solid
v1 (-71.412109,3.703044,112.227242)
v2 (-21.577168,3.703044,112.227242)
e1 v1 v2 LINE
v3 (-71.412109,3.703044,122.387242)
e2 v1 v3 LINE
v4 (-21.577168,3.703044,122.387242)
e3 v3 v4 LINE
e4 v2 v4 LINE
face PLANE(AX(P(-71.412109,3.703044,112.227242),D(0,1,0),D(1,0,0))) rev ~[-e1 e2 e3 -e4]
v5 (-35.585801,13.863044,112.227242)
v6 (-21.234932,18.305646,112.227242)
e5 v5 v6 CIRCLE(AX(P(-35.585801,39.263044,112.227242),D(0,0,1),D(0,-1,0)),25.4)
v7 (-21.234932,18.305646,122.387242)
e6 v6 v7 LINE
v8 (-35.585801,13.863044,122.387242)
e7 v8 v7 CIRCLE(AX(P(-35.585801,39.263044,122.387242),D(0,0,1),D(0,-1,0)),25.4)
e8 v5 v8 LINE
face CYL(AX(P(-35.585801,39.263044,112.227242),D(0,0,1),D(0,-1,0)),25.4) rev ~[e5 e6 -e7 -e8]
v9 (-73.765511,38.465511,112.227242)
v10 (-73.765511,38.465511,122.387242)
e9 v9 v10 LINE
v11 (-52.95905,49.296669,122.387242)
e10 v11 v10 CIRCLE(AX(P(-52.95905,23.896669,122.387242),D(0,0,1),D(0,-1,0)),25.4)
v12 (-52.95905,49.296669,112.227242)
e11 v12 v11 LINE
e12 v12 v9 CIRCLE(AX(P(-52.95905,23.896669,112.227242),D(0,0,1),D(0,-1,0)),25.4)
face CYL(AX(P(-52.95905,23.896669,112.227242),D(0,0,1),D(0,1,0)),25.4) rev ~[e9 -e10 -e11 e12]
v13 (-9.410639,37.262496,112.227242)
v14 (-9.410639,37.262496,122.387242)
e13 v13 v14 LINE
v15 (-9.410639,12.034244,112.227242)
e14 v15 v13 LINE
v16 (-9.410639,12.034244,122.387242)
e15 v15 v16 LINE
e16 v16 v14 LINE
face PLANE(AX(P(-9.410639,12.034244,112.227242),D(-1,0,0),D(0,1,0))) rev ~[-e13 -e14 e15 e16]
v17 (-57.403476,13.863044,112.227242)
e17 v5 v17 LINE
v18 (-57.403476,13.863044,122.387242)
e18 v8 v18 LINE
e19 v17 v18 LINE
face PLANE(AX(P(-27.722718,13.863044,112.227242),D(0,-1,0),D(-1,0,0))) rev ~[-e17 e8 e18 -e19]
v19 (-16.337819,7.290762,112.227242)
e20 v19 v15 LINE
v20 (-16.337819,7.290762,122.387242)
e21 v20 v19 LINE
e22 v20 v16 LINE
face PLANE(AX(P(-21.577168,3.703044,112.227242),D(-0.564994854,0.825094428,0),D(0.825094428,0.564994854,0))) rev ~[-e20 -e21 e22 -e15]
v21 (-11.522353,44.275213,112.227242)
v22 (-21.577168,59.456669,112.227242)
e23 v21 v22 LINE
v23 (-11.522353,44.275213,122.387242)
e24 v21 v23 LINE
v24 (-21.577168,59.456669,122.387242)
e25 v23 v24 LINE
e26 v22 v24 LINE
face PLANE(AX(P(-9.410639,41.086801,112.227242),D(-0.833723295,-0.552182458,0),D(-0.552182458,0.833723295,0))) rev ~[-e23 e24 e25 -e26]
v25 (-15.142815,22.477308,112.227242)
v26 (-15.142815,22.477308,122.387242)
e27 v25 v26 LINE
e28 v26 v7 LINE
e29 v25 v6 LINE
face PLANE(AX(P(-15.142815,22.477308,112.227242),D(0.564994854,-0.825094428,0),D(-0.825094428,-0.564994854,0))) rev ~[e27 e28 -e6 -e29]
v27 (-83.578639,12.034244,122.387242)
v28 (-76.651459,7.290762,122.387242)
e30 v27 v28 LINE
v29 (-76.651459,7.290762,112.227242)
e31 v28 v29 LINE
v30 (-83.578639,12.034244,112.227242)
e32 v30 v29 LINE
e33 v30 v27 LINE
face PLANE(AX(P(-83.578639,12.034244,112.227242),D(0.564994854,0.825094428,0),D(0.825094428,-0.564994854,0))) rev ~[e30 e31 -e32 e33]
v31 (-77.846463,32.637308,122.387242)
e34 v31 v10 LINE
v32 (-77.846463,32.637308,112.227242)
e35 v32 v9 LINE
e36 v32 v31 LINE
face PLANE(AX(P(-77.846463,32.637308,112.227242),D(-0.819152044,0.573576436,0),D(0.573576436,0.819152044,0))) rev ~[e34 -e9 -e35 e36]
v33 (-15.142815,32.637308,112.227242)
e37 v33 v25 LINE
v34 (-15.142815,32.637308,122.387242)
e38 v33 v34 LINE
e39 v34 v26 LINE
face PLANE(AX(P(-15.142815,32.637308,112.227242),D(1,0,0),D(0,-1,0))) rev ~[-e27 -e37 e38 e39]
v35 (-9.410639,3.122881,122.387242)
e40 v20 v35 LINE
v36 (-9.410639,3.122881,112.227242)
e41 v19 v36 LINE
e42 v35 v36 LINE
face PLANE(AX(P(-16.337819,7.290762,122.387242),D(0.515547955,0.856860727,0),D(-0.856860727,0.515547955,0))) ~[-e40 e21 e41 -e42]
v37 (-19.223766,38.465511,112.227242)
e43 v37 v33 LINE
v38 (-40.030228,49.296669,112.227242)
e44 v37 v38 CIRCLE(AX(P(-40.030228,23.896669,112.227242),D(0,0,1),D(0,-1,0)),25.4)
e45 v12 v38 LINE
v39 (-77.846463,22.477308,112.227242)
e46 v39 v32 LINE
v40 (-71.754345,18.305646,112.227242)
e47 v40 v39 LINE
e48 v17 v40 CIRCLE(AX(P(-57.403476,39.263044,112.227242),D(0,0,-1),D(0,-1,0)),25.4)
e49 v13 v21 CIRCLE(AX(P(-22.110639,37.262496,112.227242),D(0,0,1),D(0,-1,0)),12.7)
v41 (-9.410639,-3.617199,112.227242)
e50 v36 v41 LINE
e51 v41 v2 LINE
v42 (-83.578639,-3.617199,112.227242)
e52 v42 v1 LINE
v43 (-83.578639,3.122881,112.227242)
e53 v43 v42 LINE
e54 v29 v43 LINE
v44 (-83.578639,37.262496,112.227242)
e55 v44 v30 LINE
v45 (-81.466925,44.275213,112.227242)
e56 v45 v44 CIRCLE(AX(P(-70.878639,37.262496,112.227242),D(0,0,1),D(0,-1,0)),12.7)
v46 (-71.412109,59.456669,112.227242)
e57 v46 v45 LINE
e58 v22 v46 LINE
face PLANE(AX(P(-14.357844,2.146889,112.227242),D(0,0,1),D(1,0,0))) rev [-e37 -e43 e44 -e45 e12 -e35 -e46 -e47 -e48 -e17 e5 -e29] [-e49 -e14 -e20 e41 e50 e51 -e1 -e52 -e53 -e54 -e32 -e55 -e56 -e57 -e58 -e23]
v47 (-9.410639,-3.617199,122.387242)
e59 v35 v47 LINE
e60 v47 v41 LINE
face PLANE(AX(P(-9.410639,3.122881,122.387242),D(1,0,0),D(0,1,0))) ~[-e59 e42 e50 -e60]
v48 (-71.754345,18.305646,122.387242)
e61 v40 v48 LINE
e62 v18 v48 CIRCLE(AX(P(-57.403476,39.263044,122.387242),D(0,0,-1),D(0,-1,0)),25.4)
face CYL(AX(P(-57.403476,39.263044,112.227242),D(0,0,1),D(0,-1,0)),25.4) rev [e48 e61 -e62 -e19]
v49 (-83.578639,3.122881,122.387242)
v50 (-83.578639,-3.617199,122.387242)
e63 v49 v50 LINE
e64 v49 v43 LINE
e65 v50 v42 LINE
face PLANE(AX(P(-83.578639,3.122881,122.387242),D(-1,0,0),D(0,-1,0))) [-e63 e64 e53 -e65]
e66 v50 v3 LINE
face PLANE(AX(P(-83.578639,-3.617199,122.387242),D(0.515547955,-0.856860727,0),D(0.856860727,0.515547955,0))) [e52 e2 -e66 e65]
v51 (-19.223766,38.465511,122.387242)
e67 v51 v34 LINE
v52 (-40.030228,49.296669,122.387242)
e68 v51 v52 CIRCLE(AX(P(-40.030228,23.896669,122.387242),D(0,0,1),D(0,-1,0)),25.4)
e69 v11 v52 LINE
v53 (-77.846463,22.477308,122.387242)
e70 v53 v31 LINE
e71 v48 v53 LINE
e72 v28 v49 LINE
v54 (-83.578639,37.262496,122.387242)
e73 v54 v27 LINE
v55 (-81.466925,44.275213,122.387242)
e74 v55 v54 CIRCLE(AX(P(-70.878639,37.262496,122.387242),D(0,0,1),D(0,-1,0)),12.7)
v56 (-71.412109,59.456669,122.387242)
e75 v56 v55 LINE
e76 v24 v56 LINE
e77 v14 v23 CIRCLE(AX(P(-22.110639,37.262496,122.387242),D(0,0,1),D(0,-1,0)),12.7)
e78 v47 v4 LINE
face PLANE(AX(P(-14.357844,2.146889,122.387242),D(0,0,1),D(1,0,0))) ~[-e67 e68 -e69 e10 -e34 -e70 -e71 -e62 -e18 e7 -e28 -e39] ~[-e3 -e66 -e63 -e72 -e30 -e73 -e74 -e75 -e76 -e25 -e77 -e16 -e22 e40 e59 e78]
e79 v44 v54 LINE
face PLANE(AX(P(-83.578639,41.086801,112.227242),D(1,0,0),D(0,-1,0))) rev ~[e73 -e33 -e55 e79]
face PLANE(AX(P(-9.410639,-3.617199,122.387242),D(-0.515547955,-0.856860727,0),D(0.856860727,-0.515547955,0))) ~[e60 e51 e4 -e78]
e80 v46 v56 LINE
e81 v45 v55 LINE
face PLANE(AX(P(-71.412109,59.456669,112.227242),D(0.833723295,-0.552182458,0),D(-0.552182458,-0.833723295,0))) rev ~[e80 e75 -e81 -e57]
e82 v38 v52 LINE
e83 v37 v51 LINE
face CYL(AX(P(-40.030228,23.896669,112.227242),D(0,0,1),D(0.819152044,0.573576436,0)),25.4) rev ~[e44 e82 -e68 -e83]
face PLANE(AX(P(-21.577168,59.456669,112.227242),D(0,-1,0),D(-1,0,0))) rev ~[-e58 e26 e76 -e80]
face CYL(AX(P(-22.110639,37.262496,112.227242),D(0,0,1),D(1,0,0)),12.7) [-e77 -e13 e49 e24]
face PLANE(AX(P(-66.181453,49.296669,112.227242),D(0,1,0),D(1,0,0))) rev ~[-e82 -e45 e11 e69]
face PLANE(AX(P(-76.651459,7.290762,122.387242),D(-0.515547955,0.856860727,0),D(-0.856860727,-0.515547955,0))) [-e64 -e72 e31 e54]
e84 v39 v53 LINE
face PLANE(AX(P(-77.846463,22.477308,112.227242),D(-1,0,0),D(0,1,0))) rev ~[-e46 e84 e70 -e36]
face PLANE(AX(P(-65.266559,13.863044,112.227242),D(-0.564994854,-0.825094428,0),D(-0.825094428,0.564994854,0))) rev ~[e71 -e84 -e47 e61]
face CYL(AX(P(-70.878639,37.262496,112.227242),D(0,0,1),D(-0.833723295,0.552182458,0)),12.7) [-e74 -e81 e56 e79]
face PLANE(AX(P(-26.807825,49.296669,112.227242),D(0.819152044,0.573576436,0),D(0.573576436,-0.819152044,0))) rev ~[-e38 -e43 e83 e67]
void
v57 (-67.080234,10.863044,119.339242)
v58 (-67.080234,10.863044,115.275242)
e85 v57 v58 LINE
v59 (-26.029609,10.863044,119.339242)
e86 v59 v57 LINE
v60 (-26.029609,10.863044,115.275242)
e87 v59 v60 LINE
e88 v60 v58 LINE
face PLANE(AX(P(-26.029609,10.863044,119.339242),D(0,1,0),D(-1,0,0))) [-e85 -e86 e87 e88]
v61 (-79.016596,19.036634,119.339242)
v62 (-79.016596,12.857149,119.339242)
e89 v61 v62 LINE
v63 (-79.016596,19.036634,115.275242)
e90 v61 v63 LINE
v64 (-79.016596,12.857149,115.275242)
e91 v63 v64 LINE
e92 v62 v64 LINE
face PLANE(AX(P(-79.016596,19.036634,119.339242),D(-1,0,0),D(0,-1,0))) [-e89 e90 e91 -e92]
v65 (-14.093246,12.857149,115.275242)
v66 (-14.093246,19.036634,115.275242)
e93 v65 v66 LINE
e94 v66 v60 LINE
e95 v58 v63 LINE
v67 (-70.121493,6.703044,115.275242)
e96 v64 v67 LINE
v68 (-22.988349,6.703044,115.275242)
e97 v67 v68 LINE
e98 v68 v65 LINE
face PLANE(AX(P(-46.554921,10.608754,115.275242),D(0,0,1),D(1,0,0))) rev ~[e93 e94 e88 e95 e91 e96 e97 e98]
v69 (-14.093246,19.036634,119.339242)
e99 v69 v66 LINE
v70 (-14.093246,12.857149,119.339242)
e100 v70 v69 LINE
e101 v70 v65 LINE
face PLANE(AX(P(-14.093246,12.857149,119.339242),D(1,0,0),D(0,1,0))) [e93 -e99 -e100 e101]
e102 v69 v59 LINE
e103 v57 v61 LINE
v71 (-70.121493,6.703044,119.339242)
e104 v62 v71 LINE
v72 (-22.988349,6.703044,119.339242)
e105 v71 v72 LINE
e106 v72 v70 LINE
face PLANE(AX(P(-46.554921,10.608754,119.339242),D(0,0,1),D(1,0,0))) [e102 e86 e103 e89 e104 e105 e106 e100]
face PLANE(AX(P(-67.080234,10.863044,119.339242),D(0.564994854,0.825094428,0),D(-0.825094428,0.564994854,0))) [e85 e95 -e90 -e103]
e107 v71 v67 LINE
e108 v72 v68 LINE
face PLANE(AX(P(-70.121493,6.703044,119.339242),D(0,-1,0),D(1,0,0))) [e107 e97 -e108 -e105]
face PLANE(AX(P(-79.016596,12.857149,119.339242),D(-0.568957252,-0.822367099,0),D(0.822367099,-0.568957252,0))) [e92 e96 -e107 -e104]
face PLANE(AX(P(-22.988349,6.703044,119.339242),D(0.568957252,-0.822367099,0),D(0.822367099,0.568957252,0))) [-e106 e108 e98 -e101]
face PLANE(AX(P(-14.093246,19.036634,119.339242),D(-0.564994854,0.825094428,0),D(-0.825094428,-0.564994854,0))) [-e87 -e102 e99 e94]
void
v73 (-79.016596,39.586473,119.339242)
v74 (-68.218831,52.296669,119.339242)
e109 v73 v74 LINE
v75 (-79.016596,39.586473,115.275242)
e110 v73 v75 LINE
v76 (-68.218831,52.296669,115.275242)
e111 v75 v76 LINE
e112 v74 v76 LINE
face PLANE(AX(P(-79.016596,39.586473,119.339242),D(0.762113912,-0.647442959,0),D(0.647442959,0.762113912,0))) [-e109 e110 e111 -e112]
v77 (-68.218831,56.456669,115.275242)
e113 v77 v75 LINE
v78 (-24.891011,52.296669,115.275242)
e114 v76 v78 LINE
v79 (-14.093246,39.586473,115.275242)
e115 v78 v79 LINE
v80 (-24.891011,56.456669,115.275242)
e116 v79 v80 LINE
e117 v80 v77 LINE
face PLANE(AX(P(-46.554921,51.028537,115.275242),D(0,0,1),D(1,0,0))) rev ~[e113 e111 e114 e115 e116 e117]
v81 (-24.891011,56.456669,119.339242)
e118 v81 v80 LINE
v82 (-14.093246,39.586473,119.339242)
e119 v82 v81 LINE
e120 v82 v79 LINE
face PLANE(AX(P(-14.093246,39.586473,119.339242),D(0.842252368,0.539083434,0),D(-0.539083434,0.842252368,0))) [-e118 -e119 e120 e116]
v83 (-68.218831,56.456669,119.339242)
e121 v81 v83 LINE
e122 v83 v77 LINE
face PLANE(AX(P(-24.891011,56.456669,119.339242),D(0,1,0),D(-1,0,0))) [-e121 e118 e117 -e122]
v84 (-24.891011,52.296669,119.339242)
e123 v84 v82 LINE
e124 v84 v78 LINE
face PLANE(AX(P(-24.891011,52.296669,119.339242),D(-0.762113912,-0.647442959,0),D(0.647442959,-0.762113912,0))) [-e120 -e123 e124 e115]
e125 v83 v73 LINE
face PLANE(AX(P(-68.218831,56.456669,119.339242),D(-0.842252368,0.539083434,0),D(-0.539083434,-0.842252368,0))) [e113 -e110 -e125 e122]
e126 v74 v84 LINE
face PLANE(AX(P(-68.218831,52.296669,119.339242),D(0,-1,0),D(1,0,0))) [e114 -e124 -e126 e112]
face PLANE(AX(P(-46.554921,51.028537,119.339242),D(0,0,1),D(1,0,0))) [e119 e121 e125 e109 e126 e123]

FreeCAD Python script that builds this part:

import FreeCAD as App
import Part
import Sketcher
Q = App.Units.Quantity


def edges_at(feature, points):
    """Names of the edges that pass closest to the given points."""
    edges = feature.Shape.Edges
    near = lambda p: min(range(len(edges)), key=lambda i: edges[i].distToShape(Part.Vertex(*p))[0])
    return sorted({f"Edge{near(p) + 1}" for p in points})

doc = App.newDocument("Part")
body = doc.addObject("PartDesign::Body", "Body")

sketch1 = body.newObject("Sketcher::SketchObject", "Sketch")
sketch1.AttachmentSupport = (doc.getObject("XY_Plane"), [""])
sketch1.MapMode = "FlatFace"
sketch1.AttachmentOffset = App.Placement(App.Vector(0, 0, 117.307242), App.Rotation())
sketch1.addGeometry([
    Part.LineSegment(App.Vector(-84, 12, 0), App.Vector(-71, 4, 0)),
    Part.LineSegment(App.Vector(-71, 4, 0), App.Vector(-22, 4, 0)),
    Part.LineSegment(App.Vector(-22, 4, 0), App.Vector(-9, 12, 0)),
    Part.LineSegment(App.Vector(-9, 12, 0), App.Vector(-9, 41, 0)),
    Part.LineSegment(App.Vector(-9, 41, 0), App.Vector(-22, 59, 0)),
    Part.LineSegment(App.Vector(-22, 59, 0), App.Vector(-71, 59, 0)),
    Part.LineSegment(App.Vector(-71, 59, 0), App.Vector(-84, 41, 0)),
    Part.LineSegment(App.Vector(-84, 41, 0), App.Vector(-84, 12, 0)),
    Part.LineSegment(App.Vector(-28, 14, 0), App.Vector(-65, 14, 0)),
    Part.LineSegment(App.Vector(-65, 14, 0), App.Vector(-78, 22, 0)),
    Part.LineSegment(App.Vector(-78, 22, 0), App.Vector(-78, 33, 0)),
    Part.LineSegment(App.Vector(-78, 33, 0), App.Vector(-66, 49, 0)),
    Part.LineSegment(App.Vector(-66, 49, 0), App.Vector(-27, 49, 0)),
    Part.LineSegment(App.Vector(-27, 49, 0), App.Vector(-15, 33, 0)),
    Part.LineSegment(App.Vector(-15, 33, 0), App.Vector(-15, 22, 0)),
    Part.LineSegment(App.Vector(-15, 22, 0), App.Vector(-28, 14, 0)),
], False)
sketch1.addConstraint([
    Sketcher.Constraint("Coincident", 0, 2, 1, 1),
    Sketcher.Constraint("Coincident", 1, 2, 2, 1),
    Sketcher.Constraint("Coincident", 2, 2, 3, 1),
    Sketcher.Constraint("Coincident", 3, 2, 4, 1),
    Sketcher.Constraint("Coincident", 4, 2, 5, 1),
    Sketcher.Constraint("Coincident", 5, 2, 6, 1),
    Sketcher.Constraint("Coincident", 6, 2, 7, 1),
    Sketcher.Constraint("Coincident", 7, 2, 0, 1),
    Sketcher.Constraint("Coincident", 8, 2, 9, 1),
    Sketcher.Constraint("Coincident", 9, 2, 10, 1),
    Sketcher.Constraint("Coincident", 10, 2, 11, 1),
    Sketcher.Constraint("Coincident", 11, 2, 12, 1),
    Sketcher.Constraint("Coincident", 12, 2, 13, 1),
    Sketcher.Constraint("Coincident", 13, 2, 14, 1),
    Sketcher.Constraint("Coincident", 14, 2, 15, 1),
    Sketcher.Constraint("Coincident", 15, 2, 8, 1),
    Sketcher.Constraint("Horizontal", 1),
    Sketcher.Constraint("Vertical", 3),
    Sketcher.Constraint("Horizontal", 5),
    Sketcher.Constraint("Vertical", 7),
    Sketcher.Constraint("Horizontal", 8),
    Sketcher.Constraint("Vertical", 10),
    Sketcher.Constraint("Horizontal", 12),
    Sketcher.Constraint("Vertical", 14),
    Sketcher.Constraint("Parallel", 0, 9),
    Sketcher.Constraint("Parallel", 2, 15),
    Sketcher.Constraint("Horizontal", 3, 2, 6, 2),
    Sketcher.Constraint("Horizontal", 2, 2, 7, 2),
    Sketcher.Constraint("Horizontal", 10, 2, 13, 2),
    Sketcher.Constraint("Horizontal", 9, 2, 14, 2),
    Sketcher.Constraint("Vertical", 1, 2, 4, 2),
    Sketcher.Constraint("Vertical", 0, 2, 5, 2),
    Sketcher.Constraint("Equal", 0, 2),
    Sketcher.Constraint("Equal", 11, 13),
    Sketcher.Constraint("DistanceY", 10, 1, 10, 2, Q("0.4 in")),
    Sketcher.Constraint("Angle", 11, Q("55 deg")),
    Sketcher.Constraint("DistanceY", 0, 2, 8, 2, Q("0.4 in")),
    Sketcher.Constraint("DistanceY", 11, 2, 5, 2, Q("0.4 in")),
    Sketcher.Constraint("DistanceX", 6, 2, 3, 2, Q("2.92 in")),
    Sketcher.Constraint("DistanceY", 1, 2, 2, 2, Q("0.328 in")),
    Sketcher.Constraint("DistanceX", 1, 1, 1, 2, Q("49.83494 mm")),
    Sketcher.Constraint("DistanceX", 8, 2, 8, 1, Q("37.543841 mm")),
    Sketcher.Constraint("DistanceY", -1, 1, 3, 2, Q("41.086801 mm")),
    Sketcher.Constraint("Distance", 4, Q("22.033532 mm")),
    Sketcher.Constraint("DistanceX", 12, 1, 12, 2, Q("39.373628 mm")),
    Sketcher.Constraint("DistanceY", 3, 1, 3, 2, Q("29.052556 mm")),
    Sketcher.Constraint("DistanceX", 0, 2, -1, 1, Q("71.412109 mm")),
    Sketcher.Constraint("DistanceX", 8, 2, -1, 1, Q("65.266559 mm")),
])
pad1 = body.newObject("PartDesign::Pad", "Pad")
pad1.Profile = sketch1
pad1.Type = "TwoLengths"
pad1.Length = Q("0.2 in")
pad1.Length2 = Q("0.2 in")
doc.recompute()

fillet = body.newObject("PartDesign::Fillet", "Fillet")
fillet.Base = (pad1, edges_at(pad1, [(-9.411, 41.087, 117.307)]))
fillet.Radius = Q("0.5 in")
doc.recompute()

fillet2 = body.newObject("PartDesign::Fillet", "Fillet001")
fillet2.Base = (fillet, edges_at(fillet, [(-83.579, 41.087, 117.307)]))
fillet2.Radius = Q("0.5 in")
doc.recompute()

fillet3 = body.newObject("PartDesign::Fillet", "Fillet002")
fillet3.Base = (fillet2, edges_at(fillet2, [
    (-65.267, 13.863, 117.307),
    (-27.723, 13.863, 117.307),
    (-26.808, 49.297, 117.307),
    (-66.181, 49.297, 117.307),
]))
fillet3.Radius = Q("1 in")

sketch2 = body.newObject("Sketcher::SketchObject", "Sketch001")
sketch2.AttachmentSupport = (doc.getObject("XY_Plane"), [""])
sketch2.MapMode = "FlatFace"
sketch2.AttachmentOffset = App.Placement(App.Vector(0, 0, 122.387242), App.Rotation())
sketch2.addGeometry([
    Part.LineSegment(App.Vector(-84, -4, 0), App.Vector(-71, 4, 0)),
    Part.LineSegment(App.Vector(-71, 4, 0), App.Vector(-77, 7, 0)),
    Part.LineSegment(App.Vector(-77, 7, 0), App.Vector(-84, 3, 0)),
    Part.LineSegment(App.Vector(-84, 3, 0), App.Vector(-84, -4, 0)),
], False)
sketch2.addConstraint([
    Sketcher.Constraint("Coincident", 0, 2, 1, 1),
    Sketcher.Constraint("Coincident", 1, 2, 2, 1),
    Sketcher.Constraint("Coincident", 2, 2, 3, 1),
    Sketcher.Constraint("Coincident", 3, 2, 0, 1),
    Sketcher.Constraint("Vertical", 3),
    Sketcher.Constraint("Parallel", 0, 2),
    Sketcher.Constraint("Distance", 1, Q("0.25 in")),
    Sketcher.Constraint("DistanceY", 3, 2, 3, 1, Q("6.74008 mm")),
    Sketcher.Constraint("DistanceY", 3, 2, -1, 1, Q("3.617199 mm")),
    Sketcher.Constraint("Distance", 0, Q("14.198958 mm")),
    Sketcher.Constraint("Distance", 2, Q("8.084371 mm")),
    Sketcher.Constraint("DistanceX", 0, 2, -1, 1, Q("71.412109 mm")),
])
pad2 = body.newObject("PartDesign::Pad", "Pad001")
pad2.Profile = sketch2
pad2.Length = Q("0.4 in")
pad2.Reversed = True
doc.recompute()

datumplane = body.newObject("PartDesign::Plane", "DatumPlane")
datumplane.AttachmentSupport = (doc.getObject("YZ_Plane"), [""])
datumplane.MapMode = "FlatFace"
datumplane.AttachmentOffset = App.Placement(App.Vector(0, 0, -46.494639), App.Rotation())
mirrored = body.newObject("PartDesign::Mirrored", "Mirrored")
mirrored.Originals = [pad2]
mirrored.MirrorPlane = (datumplane, [""])
body.Tip = mirrored

sketch3 = body.newObject("Sketcher::SketchObject", "Sketch002")
sketch3.AttachmentSupport = (doc.getObject("XY_Plane"), [""])
sketch3.MapMode = "FlatFace"
sketch3.AttachmentOffset = App.Placement(App.Vector(0, 0, 117.307242), App.Rotation())
sketch3.addGeometry([
    Part.LineSegment(App.Vector(-68, 56, 0), App.Vector(-25, 56, 0)),
    Part.LineSegment(App.Vector(-25, 56, 0), App.Vector(-14, 40, 0)),
    Part.LineSegment(App.Vector(-14, 40, 0), App.Vector(-25, 52, 0)),
    Part.LineSegment(App.Vector(-25, 52, 0), App.Vector(-68, 52, 0)),
    Part.LineSegment(App.Vector(-68, 52, 0), App.Vector(-79, 40, 0)),
    Part.LineSegment(App.Vector(-79, 40, 0), App.Vector(-68, 56, 0)),
    Part.LineSegment(App.Vector(-79, 13, 0), App.Vector(-79, 19, 0)),
    Part.LineSegment(App.Vector(-79, 19, 0), App.Vector(-67, 11, 0)),
    Part.LineSegment(App.Vector(-67, 11, 0), App.Vector(-26, 11, 0)),
    Part.LineSegment(App.Vector(-26, 11, 0), App.Vector(-14, 19, 0)),
    Part.LineSegment(App.Vector(-14, 19, 0), App.Vector(-14, 13, 0)),
    Part.LineSegment(App.Vector(-14, 13, 0), App.Vector(-23, 7, 0)),
    Part.LineSegment(App.Vector(-23, 7, 0), App.Vector(-70, 7, 0)),
    Part.LineSegment(App.Vector(-70, 7, 0), App.Vector(-79, 13, 0)),
], False)
sketch3.addConstraint([
    Sketcher.Constraint("Coincident", 0, 2, 1, 1),
    Sketcher.Constraint("Coincident", 1, 2, 2, 1),
    Sketcher.Constraint("Coincident", 2, 2, 3, 1),
    Sketcher.Constraint("Coincident", 3, 2, 4, 1),
    Sketcher.Constraint("Coincident", 4, 2, 5, 1),
    Sketcher.Constraint("Coincident", 5, 2, 0, 1),
    Sketcher.Constraint("Coincident", 6, 2, 7, 1),
    Sketcher.Constraint("Coincident", 7, 2, 8, 1),
    Sketcher.Constraint("Coincident", 8, 2, 9, 1),
    Sketcher.Constraint("Coincident", 9, 2, 10, 1),
    Sketcher.Constraint("Coincident", 10, 2, 11, 1),
    Sketcher.Constraint("Coincident", 11, 2, 12, 1),
    Sketcher.Constraint("Coincident", 12, 2, 13, 1),
    Sketcher.Constraint("Coincident", 13, 2, 6, 1),
    Sketcher.Constraint("Horizontal", 0),
    Sketcher.Constraint("Horizontal", 3),
    Sketcher.Constraint("Vertical", 6),
    Sketcher.Constraint("Horizontal", 8),
    Sketcher.Constraint("Vertical", 10),
    Sketcher.Constraint("Horizontal", 12),
    Sketcher.Constraint("Horizontal", 1, 2, 4, 2),
    Sketcher.Constraint("Horizontal", 6, 2, 9, 2),
    Sketcher.Constraint("Horizontal", 10, 2, 13, 2),
    Sketcher.Constraint("Vertical", 0, 2, 2, 2),
    Sketcher.Constraint("Vertical", 3, 2, 5, 2),
    Sketcher.Constraint("Vertical", 4, 2, 6, 2),
    Sketcher.Constraint("Vertical", 1, 2, 9, 2),
    Sketcher.Constraint("Equal", 2, 4),
    Sketcher.Constraint("Equal", 7, 9),
    Sketcher.Constraint("Equal", 11, 13),
    Sketcher.Constraint("DistanceX", 0, 1, 0, 2, Q("43.32782 mm")),
    Sketcher.Constraint("DistanceY", 2, 2, 0, 2, Q("4.16 mm")),
    Sketcher.Constraint("DistanceY", 11, 2, 8, 2, Q("4.16 mm")),
    Sketcher.Constraint("Distance", 1, Q("20.029859 mm")),
    Sketcher.Constraint("DistanceX", 8, 1, 8, 2, Q("41.050625 mm")),
    Sketcher.Constraint("DistanceX", 12, 2, 12, 1, Q("47.133144 mm")),
    Sketcher.Constraint("DistanceY", 6, 1, 6, 2, Q("6.179485 mm")),
    Sketcher.Constraint("DistanceX", 0, 2, -1, 1, Q("24.891011 mm")),
    Sketcher.Constraint("DistanceY", -1, 1, 0, 2, Q("56.456669 mm")),
    Sketcher.Constraint("DistanceY", -1, 1, 10, 2, Q("12.857149 mm")),
    Sketcher.Constraint("DistanceX", 4, 2, 1, 2, Q("64.923351 mm")),
    Sketcher.Constraint("DistanceY", 7, 2, 6, 2, Q("8.17359 mm")),
])
pocket1 = body.newObject("PartDesign::Pocket", "Pocket")
pocket1.Profile = sketch3
pocket1.Type = "TwoLengths"
pocket1.Length = Q("0.08 in")
pocket1.Length2 = Q("0.08 in")

doc.recompute()
